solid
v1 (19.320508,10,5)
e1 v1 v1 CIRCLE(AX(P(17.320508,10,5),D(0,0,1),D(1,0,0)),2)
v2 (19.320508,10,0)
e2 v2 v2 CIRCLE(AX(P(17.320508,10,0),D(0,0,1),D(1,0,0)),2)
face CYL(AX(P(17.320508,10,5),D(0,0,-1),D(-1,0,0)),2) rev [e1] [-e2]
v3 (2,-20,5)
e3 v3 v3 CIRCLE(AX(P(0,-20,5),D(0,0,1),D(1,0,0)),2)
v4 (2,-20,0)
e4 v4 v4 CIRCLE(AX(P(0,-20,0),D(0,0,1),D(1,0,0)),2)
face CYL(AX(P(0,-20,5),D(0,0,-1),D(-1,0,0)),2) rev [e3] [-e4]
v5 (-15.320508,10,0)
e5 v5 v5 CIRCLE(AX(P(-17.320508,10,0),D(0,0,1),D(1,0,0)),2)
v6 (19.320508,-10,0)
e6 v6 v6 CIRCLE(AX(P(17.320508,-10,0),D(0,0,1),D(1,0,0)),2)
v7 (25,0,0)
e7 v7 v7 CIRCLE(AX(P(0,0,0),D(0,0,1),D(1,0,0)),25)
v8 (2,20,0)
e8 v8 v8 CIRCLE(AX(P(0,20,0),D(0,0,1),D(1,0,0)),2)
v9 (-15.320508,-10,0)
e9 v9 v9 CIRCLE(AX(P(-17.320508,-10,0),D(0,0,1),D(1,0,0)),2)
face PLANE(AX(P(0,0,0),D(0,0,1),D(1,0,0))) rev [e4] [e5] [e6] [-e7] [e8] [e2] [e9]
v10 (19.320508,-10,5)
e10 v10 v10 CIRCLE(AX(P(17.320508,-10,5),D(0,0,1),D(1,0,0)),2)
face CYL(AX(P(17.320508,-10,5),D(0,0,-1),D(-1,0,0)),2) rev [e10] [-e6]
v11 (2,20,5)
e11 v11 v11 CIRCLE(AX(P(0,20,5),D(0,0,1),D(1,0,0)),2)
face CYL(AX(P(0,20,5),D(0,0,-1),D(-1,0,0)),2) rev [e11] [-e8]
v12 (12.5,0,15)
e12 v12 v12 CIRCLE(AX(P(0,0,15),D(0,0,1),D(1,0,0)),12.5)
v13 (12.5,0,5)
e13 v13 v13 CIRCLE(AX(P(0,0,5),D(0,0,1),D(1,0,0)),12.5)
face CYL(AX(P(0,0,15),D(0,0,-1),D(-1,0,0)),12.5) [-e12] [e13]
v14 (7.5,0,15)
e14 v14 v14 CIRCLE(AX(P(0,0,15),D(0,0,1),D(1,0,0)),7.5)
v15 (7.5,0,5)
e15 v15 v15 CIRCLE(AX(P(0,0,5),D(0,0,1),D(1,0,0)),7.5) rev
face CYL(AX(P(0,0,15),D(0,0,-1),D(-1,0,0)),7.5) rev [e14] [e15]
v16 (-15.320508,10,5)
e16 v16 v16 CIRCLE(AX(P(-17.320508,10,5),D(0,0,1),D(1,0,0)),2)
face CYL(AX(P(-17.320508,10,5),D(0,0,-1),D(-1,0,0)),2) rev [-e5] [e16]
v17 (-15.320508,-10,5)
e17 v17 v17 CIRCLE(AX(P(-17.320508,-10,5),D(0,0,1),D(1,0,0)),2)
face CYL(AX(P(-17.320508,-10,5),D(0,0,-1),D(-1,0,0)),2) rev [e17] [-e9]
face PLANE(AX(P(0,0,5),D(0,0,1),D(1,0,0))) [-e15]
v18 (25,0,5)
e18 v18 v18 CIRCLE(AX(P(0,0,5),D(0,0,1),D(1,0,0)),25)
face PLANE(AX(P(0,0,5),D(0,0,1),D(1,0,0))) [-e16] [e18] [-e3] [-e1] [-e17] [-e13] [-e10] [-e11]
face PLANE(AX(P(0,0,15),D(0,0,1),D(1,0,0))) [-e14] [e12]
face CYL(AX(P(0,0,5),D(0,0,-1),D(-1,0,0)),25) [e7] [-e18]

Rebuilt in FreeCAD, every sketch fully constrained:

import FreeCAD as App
import Part
import Sketcher

V = App.Vector
Q = App.Units.Quantity

doc = App.newDocument("Part")
body = doc.addObject("PartDesign::Body", "Body")

# Sketch on XY plane
sketch1 = body.newObject("Sketcher::SketchObject", "Sketch")
sketch1.AttachmentSupport = (doc.getObject("XY_Plane"), [""])
sketch1.MapMode = "FlatFace"
sketch1.addGeometry(Part.Circle(V(0, 0, 0), V(0, 0, 1), 25), False)
sketch1.addGeometry(Part.Circle(V(-17.3, -10, 0), V(0, 0, 1), 2), False)
sketch1.addGeometry(Part.Circle(V(0, -20, 0), V(0, 0, 1), 2), False)
sketch1.addGeometry(Part.Circle(V(17.3, -10, 0), V(0, 0, 1), 2), False)
sketch1.addGeometry(Part.Circle(V(-17.3, 10, 0), V(0, 0, 1), 2), False)
sketch1.addGeometry(Part.Circle(V(17.3, 10, 0), V(0, 0, 1), 2), False)
sketch1.addGeometry(Part.Circle(V(0, 20, 0), V(0, 0, 1), 2), False)
sketch1.addConstraint(Sketcher.Constraint("Coincident", 0, 3, -1, 1))
sketch1.addConstraint(Sketcher.Constraint("Equal", 1, 2))
sketch1.addConstraint(Sketcher.Constraint("Equal", 2, 3))
sketch1.addConstraint(Sketcher.Constraint("Equal", 3, 4))
sketch1.addConstraint(Sketcher.Constraint("Equal", 4, 5))
sketch1.addConstraint(Sketcher.Constraint("Equal", 5, 6))
sketch1.addConstraint(Sketcher.Constraint("Symmetric", 3, 3, 4, 3, -1, 1))
sketch1.addConstraint(Sketcher.Constraint("Symmetric", 1, 3, 5, 3, -1, 1))
sketch1.addConstraint(Sketcher.Constraint("Symmetric", 2, 3, 6, 3, -1, 1))
sketch1.addConstraint(Sketcher.Constraint("Symmetric", 1, 3, 3, 3, -2))
sketch1.addConstraint(Sketcher.Constraint("PointOnObject", 2, 3, -2))
sketch1.addConstraint(Sketcher.Constraint("Diameter", 0, Q("50 mm")))
sketch1.addConstraint(Sketcher.Constraint("Diameter", 1, Q("4 mm")))
sketch1.addConstraint(Sketcher.Constraint("DistanceY", 1, 3, -1, 1, Q("10 mm")))
sketch1.addConstraint(Sketcher.Constraint("DistanceY", 2, 3, -1, 1, Q("20 mm")))
sketch1.addConstraint(Sketcher.Constraint("DistanceX", 1, 3, -1, 1, Q("17.320508 mm")))
pad1 = body.newObject("PartDesign::Pad", "Pad")
pad1.Profile = sketch1
pad1.Length = 5

# Sketch on XY plane
sketch2 = body.newObject("Sketcher::SketchObject", "Sketch001")
sketch2.AttachmentSupport = (doc.getObject("XY_Plane"), [""])
sketch2.MapMode = "FlatFace"
sketch2.AttachmentOffset = App.Placement(V(0, 0, 5), App.Rotation())
sketch2.addGeometry(Part.Circle(V(0, 0, 0), V(0, 0, 1), 12), False)
sketch2.addGeometry(Part.Circle(V(0, 0, 0), V(0, 0, 1), 8), False)
sketch2.addConstraint(Sketcher.Constraint("Coincident", 0, 3, -1, 1))
sketch2.addConstraint(Sketcher.Constraint("Coincident", 1, 3, -1, 1))
sketch2.addConstraint(Sketcher.Constraint("Diameter", 0, Q("25 mm")))
sketch2.addConstraint(Sketcher.Constraint("Diameter", 1, Q("15 mm")))
pad2 = body.newObject("PartDesign::Pad", "Pad001")
pad2.Profile = sketch2
pad2.Length = 10

doc.recompute()
